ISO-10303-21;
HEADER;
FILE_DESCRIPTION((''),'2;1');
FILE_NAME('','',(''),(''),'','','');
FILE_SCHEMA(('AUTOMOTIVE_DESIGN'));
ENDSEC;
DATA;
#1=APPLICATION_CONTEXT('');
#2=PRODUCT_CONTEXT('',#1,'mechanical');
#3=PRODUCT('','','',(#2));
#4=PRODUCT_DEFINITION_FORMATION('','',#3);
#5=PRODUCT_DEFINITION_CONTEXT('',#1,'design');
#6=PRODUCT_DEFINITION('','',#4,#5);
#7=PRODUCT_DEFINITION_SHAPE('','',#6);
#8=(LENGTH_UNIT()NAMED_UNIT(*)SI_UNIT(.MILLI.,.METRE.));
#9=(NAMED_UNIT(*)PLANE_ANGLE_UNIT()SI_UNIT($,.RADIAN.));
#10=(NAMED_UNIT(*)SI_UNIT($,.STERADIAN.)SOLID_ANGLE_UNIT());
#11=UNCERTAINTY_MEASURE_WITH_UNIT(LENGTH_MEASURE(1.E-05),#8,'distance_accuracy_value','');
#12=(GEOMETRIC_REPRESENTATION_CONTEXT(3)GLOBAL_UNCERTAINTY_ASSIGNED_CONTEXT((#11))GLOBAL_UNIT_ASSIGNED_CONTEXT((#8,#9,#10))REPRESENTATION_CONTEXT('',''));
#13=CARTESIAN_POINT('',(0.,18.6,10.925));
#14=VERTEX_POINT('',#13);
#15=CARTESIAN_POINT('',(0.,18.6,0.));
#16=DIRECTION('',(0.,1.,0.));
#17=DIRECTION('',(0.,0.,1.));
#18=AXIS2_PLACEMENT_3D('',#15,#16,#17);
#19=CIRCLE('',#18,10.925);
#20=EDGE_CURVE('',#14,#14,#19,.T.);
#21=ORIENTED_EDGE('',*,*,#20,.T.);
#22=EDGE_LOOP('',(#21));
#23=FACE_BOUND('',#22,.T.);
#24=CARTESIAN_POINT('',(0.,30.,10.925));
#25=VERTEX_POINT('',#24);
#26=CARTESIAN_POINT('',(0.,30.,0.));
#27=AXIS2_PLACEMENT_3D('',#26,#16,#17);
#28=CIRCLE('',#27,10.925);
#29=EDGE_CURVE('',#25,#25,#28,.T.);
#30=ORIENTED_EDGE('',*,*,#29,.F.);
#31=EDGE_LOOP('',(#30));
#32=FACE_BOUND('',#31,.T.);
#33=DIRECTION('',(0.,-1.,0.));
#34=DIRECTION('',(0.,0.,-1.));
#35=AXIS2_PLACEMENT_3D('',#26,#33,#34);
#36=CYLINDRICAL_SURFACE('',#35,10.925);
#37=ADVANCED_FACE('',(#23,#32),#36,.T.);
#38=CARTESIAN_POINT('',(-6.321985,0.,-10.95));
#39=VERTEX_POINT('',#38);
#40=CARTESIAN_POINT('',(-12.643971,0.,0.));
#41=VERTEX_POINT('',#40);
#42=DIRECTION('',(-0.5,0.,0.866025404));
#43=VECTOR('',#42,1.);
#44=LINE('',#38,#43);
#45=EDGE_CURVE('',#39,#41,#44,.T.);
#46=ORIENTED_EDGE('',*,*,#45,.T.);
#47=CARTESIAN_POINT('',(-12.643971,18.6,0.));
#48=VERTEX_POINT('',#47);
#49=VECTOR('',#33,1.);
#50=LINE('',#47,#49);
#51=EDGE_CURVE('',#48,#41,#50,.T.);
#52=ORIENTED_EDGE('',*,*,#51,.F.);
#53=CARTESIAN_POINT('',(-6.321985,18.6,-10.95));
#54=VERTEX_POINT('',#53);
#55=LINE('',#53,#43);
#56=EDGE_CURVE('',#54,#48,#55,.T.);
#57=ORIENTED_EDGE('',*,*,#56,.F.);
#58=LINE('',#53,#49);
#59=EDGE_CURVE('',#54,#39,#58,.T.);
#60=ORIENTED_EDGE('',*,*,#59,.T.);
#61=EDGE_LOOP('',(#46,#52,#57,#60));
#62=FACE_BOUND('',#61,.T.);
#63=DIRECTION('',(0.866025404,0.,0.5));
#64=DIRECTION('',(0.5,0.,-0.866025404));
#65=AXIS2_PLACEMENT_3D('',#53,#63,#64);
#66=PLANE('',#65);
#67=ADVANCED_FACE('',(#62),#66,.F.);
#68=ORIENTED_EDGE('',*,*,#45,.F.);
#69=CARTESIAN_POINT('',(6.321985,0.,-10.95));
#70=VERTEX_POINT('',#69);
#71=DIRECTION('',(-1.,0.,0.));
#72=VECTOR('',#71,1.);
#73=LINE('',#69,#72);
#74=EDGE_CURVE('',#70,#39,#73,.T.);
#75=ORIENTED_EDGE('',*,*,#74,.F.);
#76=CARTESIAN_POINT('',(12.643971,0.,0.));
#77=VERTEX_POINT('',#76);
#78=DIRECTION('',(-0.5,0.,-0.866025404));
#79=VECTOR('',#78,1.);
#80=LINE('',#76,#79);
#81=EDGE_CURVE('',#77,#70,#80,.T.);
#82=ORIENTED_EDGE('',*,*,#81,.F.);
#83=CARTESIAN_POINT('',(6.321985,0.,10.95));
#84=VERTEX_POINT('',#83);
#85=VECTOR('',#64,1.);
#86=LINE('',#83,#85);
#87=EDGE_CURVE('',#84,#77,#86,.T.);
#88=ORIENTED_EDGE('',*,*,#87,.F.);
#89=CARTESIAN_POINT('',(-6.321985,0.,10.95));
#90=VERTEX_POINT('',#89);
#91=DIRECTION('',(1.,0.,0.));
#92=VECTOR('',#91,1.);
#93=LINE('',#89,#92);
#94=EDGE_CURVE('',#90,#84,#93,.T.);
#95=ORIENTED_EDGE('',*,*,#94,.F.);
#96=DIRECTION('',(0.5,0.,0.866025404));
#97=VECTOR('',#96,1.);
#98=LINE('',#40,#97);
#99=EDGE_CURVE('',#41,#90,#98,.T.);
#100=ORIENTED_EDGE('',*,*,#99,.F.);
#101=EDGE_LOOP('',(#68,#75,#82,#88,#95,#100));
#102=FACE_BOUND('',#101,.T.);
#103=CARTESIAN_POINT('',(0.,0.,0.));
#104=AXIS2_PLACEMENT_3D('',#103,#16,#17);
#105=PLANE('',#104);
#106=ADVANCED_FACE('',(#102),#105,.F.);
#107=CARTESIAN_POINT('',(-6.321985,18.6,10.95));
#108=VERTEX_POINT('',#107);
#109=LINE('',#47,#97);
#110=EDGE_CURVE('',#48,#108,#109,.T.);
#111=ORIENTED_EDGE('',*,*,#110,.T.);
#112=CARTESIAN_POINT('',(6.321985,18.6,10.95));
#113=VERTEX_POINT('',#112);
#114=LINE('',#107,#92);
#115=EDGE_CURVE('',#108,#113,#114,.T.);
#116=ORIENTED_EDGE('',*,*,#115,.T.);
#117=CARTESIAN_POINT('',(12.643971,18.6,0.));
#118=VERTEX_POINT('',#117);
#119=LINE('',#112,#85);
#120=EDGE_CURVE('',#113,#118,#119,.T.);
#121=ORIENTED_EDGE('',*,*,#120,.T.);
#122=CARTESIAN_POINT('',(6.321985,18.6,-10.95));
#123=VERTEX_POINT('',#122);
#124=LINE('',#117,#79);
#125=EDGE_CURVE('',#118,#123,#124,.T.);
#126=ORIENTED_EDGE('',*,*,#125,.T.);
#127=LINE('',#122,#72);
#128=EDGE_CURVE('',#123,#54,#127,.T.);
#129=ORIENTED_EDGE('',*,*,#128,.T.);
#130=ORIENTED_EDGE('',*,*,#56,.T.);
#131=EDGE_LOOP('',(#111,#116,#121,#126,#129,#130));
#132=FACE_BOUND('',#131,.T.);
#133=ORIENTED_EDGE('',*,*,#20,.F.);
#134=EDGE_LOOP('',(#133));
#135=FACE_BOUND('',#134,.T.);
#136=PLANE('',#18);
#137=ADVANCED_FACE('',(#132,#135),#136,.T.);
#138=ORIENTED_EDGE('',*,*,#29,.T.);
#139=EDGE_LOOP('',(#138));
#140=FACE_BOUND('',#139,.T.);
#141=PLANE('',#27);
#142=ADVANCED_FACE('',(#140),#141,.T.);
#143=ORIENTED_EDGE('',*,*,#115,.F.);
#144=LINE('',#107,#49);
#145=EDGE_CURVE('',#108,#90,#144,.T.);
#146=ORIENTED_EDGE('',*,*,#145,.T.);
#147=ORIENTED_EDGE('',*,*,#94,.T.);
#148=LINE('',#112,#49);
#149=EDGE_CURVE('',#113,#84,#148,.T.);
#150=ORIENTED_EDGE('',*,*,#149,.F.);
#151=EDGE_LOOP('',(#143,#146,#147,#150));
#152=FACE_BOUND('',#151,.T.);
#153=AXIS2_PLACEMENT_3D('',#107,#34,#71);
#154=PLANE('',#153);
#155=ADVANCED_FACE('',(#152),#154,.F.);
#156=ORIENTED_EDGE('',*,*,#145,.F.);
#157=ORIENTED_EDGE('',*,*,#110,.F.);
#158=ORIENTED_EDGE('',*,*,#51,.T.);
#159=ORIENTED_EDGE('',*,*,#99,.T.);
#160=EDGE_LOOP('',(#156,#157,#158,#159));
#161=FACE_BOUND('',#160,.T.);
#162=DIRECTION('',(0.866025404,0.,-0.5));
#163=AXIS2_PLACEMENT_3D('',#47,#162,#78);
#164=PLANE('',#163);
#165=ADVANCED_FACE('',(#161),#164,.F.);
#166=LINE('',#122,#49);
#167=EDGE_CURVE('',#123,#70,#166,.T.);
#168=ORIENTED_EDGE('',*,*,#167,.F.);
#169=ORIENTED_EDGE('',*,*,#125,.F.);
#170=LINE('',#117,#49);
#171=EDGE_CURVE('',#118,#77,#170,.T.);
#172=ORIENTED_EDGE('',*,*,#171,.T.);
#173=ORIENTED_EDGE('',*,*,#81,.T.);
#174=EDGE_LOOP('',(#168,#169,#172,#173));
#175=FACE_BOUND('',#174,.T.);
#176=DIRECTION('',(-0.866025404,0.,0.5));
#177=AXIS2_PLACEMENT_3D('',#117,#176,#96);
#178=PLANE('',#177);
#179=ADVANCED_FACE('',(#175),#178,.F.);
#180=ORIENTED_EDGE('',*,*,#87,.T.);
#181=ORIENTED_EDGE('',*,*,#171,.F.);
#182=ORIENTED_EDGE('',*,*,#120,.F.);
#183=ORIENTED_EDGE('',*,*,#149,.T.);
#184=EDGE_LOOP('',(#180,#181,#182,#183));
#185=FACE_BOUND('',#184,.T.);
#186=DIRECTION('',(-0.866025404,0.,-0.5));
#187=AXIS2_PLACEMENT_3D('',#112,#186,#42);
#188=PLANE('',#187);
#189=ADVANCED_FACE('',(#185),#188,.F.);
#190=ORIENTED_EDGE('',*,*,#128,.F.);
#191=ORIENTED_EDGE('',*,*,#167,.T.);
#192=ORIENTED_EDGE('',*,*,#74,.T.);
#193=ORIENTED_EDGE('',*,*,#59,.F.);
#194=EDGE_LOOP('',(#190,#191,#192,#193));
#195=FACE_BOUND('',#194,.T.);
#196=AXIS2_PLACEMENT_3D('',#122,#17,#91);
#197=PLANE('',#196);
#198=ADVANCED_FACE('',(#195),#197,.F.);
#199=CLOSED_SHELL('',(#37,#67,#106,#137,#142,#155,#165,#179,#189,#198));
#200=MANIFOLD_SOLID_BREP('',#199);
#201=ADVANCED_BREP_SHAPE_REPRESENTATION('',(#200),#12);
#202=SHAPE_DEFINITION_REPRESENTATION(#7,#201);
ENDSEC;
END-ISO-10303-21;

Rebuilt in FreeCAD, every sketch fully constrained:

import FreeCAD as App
import Part
import Sketcher

V = App.Vector
Q = App.Units.Quantity


def add_polygon(sketch, points):
    """Adds a closed chain of lines whose ends are joined by coincident constraints."""
    first, n = sketch.GeometryCount, len(points)
    for a, b in zip(points, points[1:] + points[:1]):
        sketch.addGeometry(Part.LineSegment(App.Vector(*a, 0), App.Vector(*b, 0)), False)
    for i in range(n):
        sketch.addConstraint(Sketcher.Constraint("Coincident", first + i, 2, first + (i + 1) % n, 1))

doc = App.newDocument("Part")
body = doc.addObject("PartDesign::Body", "Body")

sketch1 = body.newObject("Sketcher::SketchObject", "Sketch")
sketch1.AttachmentSupport = (doc.getObject("XZ_Plane"), [""])
sketch1.MapMode = "FlatFace"
add_polygon(sketch1, [(12.643971, 0), (6.321985, -10.95), (-6.321985, -10.95), (-12.643971, 0), (-6.321985, 10.95), (6.321985, 10.95)])
sketch1.addConstraint([
    Sketcher.Constraint("Horizontal", 1),
    Sketcher.Constraint("Horizontal", 4),
    Sketcher.Constraint("Symmetric", 0, 2, 3, 2, -1, 1),
    Sketcher.Constraint("Symmetric", 2, 2, 5, 2, -1, 1),
    Sketcher.Constraint("PointOnObject", 2, 2, -1),
    Sketcher.Constraint("Parallel", 2, 5),
    Sketcher.Constraint("Vertical", 1, 2, 3, 2),
    Sketcher.Constraint("Angle", 0, Q("-120 deg")),
    Sketcher.Constraint("DistanceY", 1, 2, 3, 2, Q("21.9 mm")),
    Sketcher.Constraint("DistanceX", 1, 2, 1, 1, Q("12.643971 mm")),
])
pad1 = body.newObject("PartDesign::Pad", "Pad")
pad1.Profile = sketch1
pad1.Length = 18.6
pad1.Reversed = True

sketch2 = body.newObject("Sketcher::SketchObject", "Sketch001")
sketch2.AttachmentSupport = (doc.getObject("XZ_Plane"), [""])
sketch2.MapMode = "FlatFace"
sketch2.AttachmentOffset = App.Placement(V(0, 0, -18.6), App.Rotation())
sketch2.addGeometry(Part.Circle(V(0, 0, 0), V(0, 0, 1), 10.925), False)
sketch2.addConstraint([
    Sketcher.Constraint("Coincident", 0, 3, -1, 1),
    Sketcher.Constraint("Diameter", 0, Q("21.85 mm")),
])
pad2 = body.newObject("PartDesign::Pad", "Pad001")
pad2.Profile = sketch2
pad2.Length = 11.4
pad2.Reversed = True

doc.recompute()
